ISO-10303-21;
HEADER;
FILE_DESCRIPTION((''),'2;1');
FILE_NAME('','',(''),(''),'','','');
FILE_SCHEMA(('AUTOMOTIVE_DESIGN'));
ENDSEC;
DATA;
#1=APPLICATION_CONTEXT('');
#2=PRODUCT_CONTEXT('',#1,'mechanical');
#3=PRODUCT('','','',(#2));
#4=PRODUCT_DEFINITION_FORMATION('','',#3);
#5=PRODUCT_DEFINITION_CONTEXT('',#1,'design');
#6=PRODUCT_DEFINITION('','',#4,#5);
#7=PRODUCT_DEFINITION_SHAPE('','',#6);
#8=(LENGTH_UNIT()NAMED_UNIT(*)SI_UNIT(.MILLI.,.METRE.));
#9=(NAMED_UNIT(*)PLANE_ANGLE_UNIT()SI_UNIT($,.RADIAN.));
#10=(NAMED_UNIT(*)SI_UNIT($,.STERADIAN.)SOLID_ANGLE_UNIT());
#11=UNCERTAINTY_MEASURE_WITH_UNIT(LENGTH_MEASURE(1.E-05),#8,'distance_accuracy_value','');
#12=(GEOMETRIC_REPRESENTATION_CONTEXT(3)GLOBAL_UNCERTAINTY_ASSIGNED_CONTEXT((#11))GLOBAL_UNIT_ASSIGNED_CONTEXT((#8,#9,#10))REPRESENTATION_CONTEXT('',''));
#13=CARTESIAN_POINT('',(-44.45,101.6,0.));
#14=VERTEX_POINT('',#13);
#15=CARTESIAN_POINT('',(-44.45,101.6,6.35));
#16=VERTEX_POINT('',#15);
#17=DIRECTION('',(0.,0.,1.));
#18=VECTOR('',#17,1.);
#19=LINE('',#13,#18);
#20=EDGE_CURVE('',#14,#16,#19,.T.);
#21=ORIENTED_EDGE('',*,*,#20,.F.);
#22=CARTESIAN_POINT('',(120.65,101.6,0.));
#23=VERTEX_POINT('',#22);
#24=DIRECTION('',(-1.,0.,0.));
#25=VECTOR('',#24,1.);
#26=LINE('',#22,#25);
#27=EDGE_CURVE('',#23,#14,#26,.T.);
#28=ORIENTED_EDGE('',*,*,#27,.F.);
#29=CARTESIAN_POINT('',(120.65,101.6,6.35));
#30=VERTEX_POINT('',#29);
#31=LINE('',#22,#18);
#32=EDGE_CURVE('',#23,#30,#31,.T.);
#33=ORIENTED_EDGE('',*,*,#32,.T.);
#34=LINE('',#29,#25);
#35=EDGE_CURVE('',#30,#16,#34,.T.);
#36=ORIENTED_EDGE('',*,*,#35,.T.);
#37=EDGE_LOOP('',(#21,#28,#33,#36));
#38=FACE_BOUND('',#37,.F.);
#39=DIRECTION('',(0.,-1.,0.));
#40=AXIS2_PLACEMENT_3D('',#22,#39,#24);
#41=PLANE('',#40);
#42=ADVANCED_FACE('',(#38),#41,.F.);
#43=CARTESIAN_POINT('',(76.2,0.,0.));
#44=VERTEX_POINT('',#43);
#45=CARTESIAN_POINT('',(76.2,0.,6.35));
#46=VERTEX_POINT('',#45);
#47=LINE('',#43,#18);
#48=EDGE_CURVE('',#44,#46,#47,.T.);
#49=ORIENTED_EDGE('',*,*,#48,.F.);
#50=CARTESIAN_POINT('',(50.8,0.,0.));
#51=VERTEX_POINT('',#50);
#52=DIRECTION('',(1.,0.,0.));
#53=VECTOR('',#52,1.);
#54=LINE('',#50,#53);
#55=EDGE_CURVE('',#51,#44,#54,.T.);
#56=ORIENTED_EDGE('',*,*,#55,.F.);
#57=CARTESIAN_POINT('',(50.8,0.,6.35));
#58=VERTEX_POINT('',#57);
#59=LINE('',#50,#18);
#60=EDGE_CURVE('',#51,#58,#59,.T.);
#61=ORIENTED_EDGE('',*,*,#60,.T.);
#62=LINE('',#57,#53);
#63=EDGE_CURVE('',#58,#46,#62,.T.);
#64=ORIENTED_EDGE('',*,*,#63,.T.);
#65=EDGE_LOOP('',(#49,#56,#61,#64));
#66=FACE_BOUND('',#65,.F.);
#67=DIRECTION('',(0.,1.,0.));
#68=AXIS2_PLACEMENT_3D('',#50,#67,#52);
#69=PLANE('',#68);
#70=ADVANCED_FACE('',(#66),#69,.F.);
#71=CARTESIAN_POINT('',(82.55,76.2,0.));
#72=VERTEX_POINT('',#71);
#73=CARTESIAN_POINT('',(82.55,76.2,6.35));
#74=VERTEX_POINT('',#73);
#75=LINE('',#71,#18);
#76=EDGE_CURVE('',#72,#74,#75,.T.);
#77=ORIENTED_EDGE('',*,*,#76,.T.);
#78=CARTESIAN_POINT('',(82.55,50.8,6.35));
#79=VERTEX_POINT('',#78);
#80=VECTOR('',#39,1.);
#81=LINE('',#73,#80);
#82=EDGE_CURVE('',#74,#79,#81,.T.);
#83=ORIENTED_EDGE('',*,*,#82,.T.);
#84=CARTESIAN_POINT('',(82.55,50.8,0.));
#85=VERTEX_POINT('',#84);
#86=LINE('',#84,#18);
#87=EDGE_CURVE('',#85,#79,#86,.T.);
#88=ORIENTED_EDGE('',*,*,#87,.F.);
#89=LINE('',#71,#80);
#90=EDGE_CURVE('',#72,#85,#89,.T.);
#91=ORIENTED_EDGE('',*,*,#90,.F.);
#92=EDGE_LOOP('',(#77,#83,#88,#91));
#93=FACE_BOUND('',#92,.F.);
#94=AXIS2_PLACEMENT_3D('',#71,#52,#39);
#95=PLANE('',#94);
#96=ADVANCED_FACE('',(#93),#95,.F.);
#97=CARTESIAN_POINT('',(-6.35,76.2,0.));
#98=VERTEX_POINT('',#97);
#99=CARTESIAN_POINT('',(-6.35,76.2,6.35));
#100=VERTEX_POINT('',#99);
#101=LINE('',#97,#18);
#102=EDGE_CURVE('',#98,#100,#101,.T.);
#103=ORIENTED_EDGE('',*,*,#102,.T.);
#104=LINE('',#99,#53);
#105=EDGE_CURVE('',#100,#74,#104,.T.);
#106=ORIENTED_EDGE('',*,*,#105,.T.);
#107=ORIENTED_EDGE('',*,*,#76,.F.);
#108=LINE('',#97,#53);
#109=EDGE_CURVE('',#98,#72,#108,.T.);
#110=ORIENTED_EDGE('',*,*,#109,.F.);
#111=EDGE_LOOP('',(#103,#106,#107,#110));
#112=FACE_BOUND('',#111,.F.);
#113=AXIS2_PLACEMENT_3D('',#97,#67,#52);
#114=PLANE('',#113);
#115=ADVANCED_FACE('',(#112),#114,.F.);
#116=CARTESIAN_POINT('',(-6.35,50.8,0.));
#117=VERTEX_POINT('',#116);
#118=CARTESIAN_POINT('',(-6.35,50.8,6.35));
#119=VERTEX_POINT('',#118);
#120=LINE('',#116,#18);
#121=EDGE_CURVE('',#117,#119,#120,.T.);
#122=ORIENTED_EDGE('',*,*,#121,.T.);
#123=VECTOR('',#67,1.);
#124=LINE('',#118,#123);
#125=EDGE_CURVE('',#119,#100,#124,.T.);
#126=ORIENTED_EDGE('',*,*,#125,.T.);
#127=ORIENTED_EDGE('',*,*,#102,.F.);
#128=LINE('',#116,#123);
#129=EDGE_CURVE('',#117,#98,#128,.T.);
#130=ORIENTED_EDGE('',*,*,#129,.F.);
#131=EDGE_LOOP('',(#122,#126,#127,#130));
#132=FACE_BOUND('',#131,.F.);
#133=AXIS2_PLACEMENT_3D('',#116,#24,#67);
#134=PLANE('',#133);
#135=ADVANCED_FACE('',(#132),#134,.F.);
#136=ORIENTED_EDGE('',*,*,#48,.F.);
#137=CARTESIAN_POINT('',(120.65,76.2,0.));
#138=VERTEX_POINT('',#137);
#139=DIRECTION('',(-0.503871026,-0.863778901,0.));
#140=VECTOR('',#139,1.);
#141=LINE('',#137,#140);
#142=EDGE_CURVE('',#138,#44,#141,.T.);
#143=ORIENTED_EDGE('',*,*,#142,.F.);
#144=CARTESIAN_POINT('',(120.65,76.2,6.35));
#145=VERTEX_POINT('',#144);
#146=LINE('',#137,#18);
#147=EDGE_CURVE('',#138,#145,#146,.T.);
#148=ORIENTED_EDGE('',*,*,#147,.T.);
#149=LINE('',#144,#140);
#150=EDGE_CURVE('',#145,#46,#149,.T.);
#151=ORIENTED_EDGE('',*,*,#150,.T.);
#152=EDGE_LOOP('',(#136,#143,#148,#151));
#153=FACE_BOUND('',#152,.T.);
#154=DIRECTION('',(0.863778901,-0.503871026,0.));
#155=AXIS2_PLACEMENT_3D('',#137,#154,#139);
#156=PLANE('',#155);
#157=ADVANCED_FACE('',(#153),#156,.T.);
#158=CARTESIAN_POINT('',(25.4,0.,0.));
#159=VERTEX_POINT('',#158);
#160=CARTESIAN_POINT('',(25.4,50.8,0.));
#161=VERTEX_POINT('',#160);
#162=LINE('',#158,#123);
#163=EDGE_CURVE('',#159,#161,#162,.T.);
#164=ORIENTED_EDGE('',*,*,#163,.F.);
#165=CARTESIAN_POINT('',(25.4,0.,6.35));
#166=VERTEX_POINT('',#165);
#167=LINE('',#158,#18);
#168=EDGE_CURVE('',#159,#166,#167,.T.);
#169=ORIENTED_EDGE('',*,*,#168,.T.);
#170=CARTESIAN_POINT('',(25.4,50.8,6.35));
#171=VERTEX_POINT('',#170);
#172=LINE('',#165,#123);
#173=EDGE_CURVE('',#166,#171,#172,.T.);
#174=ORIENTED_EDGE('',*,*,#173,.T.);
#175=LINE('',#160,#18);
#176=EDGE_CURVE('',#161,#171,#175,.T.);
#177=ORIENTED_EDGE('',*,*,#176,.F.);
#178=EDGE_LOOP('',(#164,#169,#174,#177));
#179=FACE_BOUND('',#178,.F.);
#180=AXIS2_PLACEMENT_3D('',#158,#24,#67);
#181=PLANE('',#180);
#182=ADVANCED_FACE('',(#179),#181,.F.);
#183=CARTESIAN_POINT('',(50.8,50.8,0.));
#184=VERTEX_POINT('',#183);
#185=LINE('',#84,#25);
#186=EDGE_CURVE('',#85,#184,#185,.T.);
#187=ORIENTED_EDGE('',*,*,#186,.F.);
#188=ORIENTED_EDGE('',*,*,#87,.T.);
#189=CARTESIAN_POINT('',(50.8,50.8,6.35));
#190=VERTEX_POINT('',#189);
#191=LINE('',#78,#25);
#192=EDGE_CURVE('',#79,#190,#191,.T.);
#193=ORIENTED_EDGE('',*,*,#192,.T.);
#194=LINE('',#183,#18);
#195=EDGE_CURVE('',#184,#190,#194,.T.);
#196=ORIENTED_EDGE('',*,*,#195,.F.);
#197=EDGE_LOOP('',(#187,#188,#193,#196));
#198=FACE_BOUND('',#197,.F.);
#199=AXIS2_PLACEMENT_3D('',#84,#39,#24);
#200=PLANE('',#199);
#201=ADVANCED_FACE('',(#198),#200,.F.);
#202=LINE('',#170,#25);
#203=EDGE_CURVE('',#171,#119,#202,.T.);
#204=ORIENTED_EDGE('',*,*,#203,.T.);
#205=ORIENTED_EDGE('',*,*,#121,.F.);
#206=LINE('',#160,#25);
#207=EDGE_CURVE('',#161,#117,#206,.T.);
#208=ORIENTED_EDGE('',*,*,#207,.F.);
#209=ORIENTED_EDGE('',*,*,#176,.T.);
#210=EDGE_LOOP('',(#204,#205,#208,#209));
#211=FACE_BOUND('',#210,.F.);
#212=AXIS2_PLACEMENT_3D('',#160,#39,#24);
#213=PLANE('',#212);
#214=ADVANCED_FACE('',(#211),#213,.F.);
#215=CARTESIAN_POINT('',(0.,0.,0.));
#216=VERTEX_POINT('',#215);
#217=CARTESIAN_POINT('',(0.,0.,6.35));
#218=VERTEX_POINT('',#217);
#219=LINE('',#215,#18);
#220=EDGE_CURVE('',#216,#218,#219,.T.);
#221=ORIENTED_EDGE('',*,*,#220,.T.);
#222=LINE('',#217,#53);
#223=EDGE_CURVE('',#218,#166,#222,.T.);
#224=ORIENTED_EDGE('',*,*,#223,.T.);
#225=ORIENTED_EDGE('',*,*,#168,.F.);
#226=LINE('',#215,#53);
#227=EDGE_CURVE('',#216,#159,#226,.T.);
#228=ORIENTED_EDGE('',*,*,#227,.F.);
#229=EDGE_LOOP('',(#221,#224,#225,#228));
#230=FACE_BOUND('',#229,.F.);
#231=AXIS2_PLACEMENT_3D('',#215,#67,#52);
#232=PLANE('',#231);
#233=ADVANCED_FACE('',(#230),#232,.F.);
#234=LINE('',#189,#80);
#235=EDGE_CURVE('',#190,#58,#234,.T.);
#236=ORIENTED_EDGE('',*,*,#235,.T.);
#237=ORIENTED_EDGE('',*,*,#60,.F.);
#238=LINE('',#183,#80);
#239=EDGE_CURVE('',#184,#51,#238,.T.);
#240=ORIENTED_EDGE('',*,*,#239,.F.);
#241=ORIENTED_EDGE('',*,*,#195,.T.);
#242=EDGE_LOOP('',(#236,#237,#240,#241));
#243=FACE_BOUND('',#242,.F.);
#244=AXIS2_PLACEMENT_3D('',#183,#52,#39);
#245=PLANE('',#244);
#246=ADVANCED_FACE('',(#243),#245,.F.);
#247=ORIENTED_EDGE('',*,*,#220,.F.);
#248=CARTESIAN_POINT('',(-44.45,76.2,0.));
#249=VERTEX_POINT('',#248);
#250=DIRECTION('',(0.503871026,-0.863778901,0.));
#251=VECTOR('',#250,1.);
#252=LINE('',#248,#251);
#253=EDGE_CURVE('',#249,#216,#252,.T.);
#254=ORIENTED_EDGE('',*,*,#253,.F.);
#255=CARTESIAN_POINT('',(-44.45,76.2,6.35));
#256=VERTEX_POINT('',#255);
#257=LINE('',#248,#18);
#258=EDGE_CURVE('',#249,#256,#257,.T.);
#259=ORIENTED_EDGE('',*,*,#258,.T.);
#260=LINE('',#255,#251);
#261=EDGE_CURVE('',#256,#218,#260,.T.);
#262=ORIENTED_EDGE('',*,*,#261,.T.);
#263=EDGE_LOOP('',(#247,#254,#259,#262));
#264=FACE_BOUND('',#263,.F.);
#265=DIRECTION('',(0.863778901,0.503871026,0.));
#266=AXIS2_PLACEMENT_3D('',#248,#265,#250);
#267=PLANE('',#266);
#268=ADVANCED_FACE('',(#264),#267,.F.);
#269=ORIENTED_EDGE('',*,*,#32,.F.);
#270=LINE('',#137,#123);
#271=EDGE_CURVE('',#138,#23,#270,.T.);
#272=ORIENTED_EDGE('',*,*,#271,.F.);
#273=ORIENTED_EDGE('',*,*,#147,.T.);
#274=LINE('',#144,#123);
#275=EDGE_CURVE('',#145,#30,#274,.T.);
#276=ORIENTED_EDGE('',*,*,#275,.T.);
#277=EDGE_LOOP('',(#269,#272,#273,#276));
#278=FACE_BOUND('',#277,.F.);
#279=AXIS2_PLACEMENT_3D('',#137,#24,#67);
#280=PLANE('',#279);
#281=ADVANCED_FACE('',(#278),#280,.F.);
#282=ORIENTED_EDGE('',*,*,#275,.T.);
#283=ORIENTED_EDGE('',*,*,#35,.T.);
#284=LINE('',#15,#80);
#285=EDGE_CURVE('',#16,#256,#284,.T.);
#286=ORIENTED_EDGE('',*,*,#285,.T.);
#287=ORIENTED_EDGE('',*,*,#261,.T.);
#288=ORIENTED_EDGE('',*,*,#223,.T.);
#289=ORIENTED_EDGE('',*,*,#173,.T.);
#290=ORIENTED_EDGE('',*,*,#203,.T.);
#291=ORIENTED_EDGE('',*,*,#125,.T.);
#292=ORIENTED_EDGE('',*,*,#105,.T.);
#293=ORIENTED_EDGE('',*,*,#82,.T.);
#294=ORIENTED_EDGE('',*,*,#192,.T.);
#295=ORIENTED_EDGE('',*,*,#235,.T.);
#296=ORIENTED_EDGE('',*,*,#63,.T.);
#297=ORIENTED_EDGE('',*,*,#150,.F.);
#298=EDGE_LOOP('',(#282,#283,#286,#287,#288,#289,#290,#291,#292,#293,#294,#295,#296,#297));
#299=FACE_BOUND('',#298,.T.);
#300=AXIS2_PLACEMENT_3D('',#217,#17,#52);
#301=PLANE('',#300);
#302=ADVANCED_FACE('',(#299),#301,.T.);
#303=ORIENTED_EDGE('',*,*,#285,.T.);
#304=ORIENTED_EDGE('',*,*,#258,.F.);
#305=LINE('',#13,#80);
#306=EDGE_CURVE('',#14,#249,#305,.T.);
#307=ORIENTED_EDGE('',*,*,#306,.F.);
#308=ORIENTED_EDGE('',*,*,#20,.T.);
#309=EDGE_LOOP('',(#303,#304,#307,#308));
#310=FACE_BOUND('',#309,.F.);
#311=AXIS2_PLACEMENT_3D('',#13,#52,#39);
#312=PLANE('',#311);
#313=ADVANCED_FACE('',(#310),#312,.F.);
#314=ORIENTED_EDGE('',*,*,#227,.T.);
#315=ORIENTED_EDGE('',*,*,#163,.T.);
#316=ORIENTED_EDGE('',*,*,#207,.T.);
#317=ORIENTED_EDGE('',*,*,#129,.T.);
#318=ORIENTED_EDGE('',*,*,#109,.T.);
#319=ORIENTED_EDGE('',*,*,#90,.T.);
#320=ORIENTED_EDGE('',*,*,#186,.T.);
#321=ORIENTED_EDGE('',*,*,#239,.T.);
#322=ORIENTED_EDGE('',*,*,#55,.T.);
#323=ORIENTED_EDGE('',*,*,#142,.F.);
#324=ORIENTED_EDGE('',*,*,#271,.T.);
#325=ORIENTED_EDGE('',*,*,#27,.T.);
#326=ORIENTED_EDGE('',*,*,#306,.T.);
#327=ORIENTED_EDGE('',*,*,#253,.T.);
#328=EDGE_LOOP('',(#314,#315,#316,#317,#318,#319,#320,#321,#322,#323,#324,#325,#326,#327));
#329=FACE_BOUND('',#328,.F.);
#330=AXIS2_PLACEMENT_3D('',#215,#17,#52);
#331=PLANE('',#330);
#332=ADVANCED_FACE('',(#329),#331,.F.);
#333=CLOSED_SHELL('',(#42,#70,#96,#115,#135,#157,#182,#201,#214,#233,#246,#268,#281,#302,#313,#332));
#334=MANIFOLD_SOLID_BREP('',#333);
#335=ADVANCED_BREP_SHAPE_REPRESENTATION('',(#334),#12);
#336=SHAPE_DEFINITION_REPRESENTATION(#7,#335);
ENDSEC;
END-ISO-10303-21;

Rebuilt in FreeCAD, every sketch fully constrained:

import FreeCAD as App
import Part
import Sketcher
from FreeCAD import Vector
Q = App.Units.Quantity


def add_polygon(sketch, points):
    """Adds a closed chain of lines whose ends are joined by coincident constraints."""
    first, n = sketch.GeometryCount, len(points)
    for a, b in zip(points, points[1:] + points[:1]):
        sketch.addGeometry(Part.LineSegment(App.Vector(*a, 0), App.Vector(*b, 0)), False)
    for i in range(n):
        sketch.addConstraint(Sketcher.Constraint("Coincident", first + i, 2, first + (i + 1) % n, 1))

doc = App.newDocument("Part")
body = doc.addObject("PartDesign::Body", "Body")

# Sketch on XY plane
sketch1 = body.newObject("Sketcher::SketchObject", "Sketch")
sketch1.AttachmentSupport = (doc.getObject("XY_Plane"), [""])
sketch1.MapMode = "FlatFace"
add_polygon(sketch1, [(-44.45, 76.2), (0, 0), (25.4, 0), (25.4, 50.8), (-6.35, 50.8), (-6.35, 76.2), (82.55, 76.2), (82.55, 50.8), (50.8, 50.8), (50.8, 0), (76.2, 0), (120.65, 76.2), (120.65, 101.6), (-44.45, 101.6)])  # lines 0-13
sketch1.addConstraint(Sketcher.Constraint("Horizontal", 1))
sketch1.addConstraint(Sketcher.Constraint("Vertical", 2))
sketch1.addConstraint(Sketcher.Constraint("Horizontal", 3))
sketch1.addConstraint(Sketcher.Constraint("Vertical", 4))
sketch1.addConstraint(Sketcher.Constraint("Horizontal", 5))
sketch1.addConstraint(Sketcher.Constraint("Vertical", 6))
sketch1.addConstraint(Sketcher.Constraint("Horizontal", 7))
sketch1.addConstraint(Sketcher.Constraint("Vertical", 8))
sketch1.addConstraint(Sketcher.Constraint("Horizontal", 9))
sketch1.addConstraint(Sketcher.Constraint("Vertical", 11))
sketch1.addConstraint(Sketcher.Constraint("Horizontal", 12))
sketch1.addConstraint(Sketcher.Constraint("Vertical", 13))
sketch1.addConstraint(Sketcher.Constraint("Coincident", 0, 2, -1, 1))
sketch1.addConstraint(Sketcher.Constraint("PointOnObject", 8, 2, -1))
sketch1.addConstraint(Sketcher.Constraint("Horizontal", 3, 2, 6, 2))
sketch1.addConstraint(Sketcher.Constraint("Horizontal", 5, 2, 10, 2))
sketch1.addConstraint(Sketcher.Constraint("Horizontal", 10, 2, 13, 2))
sketch1.addConstraint(Sketcher.Constraint("Equal", 3, 7))
sketch1.addConstraint(Sketcher.Constraint("Equal", 1, 9))
sketch1.addConstraint(Sketcher.Constraint("Equal", 9, 4))
sketch1.addConstraint(Sketcher.Constraint("Equal", 6, 11))
sketch1.addConstraint(Sketcher.Constraint("Equal", 0, 10))
sketch1.addConstraint(Sketcher.Constraint("DistanceX", 1, 1, 1, 2, Q("1 in")))
sketch1.addConstraint(Sketcher.Constraint("DistanceY", 2, 1, 2, 2, Q("2 in")))
sketch1.addConstraint(Sketcher.Constraint("DistanceX", 5, 1, 5, 2, Q("3.5 in")))
sketch1.addConstraint(Sketcher.Constraint("DistanceX", 12, 2, 12, 1, Q("6.5 in")))
sketch1.addConstraint(Sketcher.Constraint("DistanceX", -1, 1, 7, 2, Q("2 in")))
pad1 = body.newObject("PartDesign::Pad", "Pad")
pad1.Profile = sketch1
pad1.Length = Q("0.25 in")

doc.recompute()
